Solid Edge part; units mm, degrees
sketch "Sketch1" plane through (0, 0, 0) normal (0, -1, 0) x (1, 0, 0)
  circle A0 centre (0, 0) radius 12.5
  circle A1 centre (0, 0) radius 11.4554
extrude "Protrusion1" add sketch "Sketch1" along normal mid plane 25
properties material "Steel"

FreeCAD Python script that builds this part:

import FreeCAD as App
import Part
import Sketcher

doc = App.newDocument("Part")
body = doc.addObject("PartDesign::Body", "Body")

sketch1 = doc.addObject("Sketcher::SketchObject", "Sketch")
body.addObject(sketch1)
sketch1.AttachmentSupport = (doc.XZ_Plane, [""])
sketch1.MapMode = "FlatFace"
sketch1.addGeometry([
    Part.Circle(App.Vector(0, 0, 0), App.Vector(0, 0, 1), 12.5),
    Part.Circle(App.Vector(0, 0, 0), App.Vector(0, 0, 1), 11.4554),
], False)
sketch1.addConstraint([
    Sketcher.Constraint("Coincident", 0, 3, -1, 1),
    Sketcher.Constraint("Coincident", 1, 3, -1, 1),
    Sketcher.Constraint("Diameter", 0, 25.0),
    Sketcher.Constraint("Diameter", 1, 22.9108),
])
pad1 = doc.addObject("PartDesign::Pad", "Pad")
body.addObject(pad1)
pad1.Profile = sketch1
pad1.Length = 25
pad1.Midplane = True

doc.recompute()
